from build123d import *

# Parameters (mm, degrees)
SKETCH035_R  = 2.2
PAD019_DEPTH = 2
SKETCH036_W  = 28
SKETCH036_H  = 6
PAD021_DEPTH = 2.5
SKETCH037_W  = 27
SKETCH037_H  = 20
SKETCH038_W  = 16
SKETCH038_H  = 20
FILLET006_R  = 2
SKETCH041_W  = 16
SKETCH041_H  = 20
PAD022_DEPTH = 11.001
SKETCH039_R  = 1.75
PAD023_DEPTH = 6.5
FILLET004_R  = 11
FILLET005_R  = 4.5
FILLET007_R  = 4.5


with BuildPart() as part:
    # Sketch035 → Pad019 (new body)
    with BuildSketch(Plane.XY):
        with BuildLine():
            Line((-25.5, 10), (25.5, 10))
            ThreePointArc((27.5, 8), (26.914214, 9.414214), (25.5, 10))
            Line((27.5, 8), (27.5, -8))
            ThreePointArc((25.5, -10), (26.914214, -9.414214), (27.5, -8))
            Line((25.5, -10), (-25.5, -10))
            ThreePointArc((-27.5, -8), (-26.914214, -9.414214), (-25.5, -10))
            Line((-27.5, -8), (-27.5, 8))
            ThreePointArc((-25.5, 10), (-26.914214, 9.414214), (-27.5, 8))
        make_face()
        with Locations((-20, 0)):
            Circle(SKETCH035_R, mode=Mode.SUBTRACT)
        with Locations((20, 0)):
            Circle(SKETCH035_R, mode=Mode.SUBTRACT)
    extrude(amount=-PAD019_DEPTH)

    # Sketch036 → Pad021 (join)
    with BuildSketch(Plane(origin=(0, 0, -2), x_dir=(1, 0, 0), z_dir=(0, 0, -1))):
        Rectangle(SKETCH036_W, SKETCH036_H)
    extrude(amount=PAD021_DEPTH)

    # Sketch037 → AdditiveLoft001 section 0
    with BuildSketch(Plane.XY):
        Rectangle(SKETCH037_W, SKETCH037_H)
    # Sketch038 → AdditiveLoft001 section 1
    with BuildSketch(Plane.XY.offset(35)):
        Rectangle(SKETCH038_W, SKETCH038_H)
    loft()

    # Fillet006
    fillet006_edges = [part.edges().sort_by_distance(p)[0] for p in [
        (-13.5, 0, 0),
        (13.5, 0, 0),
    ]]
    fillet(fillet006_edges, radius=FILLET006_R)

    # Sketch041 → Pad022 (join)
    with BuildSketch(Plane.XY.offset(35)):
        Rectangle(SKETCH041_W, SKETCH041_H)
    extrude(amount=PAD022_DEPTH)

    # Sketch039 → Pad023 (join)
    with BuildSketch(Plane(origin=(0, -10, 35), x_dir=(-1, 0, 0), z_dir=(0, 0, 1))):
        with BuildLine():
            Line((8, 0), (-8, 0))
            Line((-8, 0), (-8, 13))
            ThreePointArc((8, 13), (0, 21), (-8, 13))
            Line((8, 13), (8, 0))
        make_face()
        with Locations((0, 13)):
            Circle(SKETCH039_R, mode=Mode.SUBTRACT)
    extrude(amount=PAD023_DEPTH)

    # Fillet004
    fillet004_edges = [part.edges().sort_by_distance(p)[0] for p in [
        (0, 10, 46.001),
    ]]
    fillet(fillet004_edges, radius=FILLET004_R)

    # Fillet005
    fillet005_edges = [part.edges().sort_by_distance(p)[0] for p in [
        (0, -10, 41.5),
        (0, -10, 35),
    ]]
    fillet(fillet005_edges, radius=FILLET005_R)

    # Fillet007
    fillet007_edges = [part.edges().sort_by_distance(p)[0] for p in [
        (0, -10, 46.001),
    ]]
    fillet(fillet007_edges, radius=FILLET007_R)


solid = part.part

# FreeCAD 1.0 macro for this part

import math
import FreeCAD as App
import Part
import Sketcher

V = App.Vector
Q = App.Units.Quantity


def edges_at(feature, points):
    """Names of the edges that pass closest to the given points."""
    edges = feature.Shape.Edges
    near = lambda p: min(range(len(edges)), key=lambda i: edges[i].distToShape(Part.Vertex(*p))[0])
    return sorted({f"Edge{near(p) + 1}" for p in points})

doc = App.newDocument("Part")
params = doc.addObject("Spreadsheet::Sheet", "Params")
for row, (alias, value) in enumerate([
    ("sketch1_radius", "1.999999 mm"),
    ("sketch1_diameter", "4.4 mm"),
    ("sketch1_width", "51 mm"),
    ("sketch1_height", "16 mm"),
    ("pad1_length", "2 mm"),
    ("sketch2_width", "28 mm"),
    ("sketch2_height", "6 mm"),
    ("pad2_length", "2.5 mm"),
    ("sketch3_width", "27 mm"),
    ("sketch3_height", "20 mm"),
    ("sketch4_width", "16 mm"),
    ("sketch4_height", "20 mm"),
    ("fillet_radius", "2 mm"),
    ("sketch5_width", "16 mm"),
    ("sketch5_height", "20 mm"),
    ("pad3_length", "11.001 mm"),
    ("sketch6_radius", "8 mm"),
    ("sketch6_diameter", "3.5 mm"),
    ("sketch6_height", "13 mm"),
    ("pad4_length", "6.5 mm"),
    ("fillet2_radius", "11 mm"),
    ("fillet3_radius", "4.5 mm"),
    ("fillet4_radius", "4.5 mm"),
], start=1):
    params.set(f"A{row}", alias)
    params.set(f"B{row}", "=" + value)
    params.setAlias(f"B{row}", alias)

body = doc.addObject("PartDesign::Body", "Body")

sketch1 = body.newObject("Sketcher::SketchObject", "Sketch")
sketch1.AttachmentSupport = (doc.getObject("XY_Plane"), [""])
sketch1.MapMode = "FlatFace"
sketch1.addGeometry(Part.LineSegment(V(25.5, 10, 0), V(-25.5, 10, 0)), False)
sketch1.addGeometry(Part.ArcOfCircle(Part.Circle(V(-25.5, 8, 0), V(0, 0, 1), 2), math.radians(90), math.radians(180)), False)
sketch1.addGeometry(Part.LineSegment(V(-27.5, 8, 0), V(-27.5, -8, 0)), False)
sketch1.addGeometry(Part.ArcOfCircle(Part.Circle(V(-25.5, -8, 0), V(0, 0, 1), 2), math.radians(180), math.radians(270)), False)
sketch1.addGeometry(Part.LineSegment(V(-25.5, -10, 0), V(25.5, -10, 0)), False)
sketch1.addGeometry(Part.ArcOfCircle(Part.Circle(V(25.5, -8, 0), V(0, 0, 1), 2), math.radians(-90), math.radians(0)), False)
sketch1.addGeometry(Part.LineSegment(V(27.5, -8, 0), V(27.5, 8, 0)), False)
sketch1.addGeometry(Part.ArcOfCircle(Part.Circle(V(25.5, 8, 0), V(0, 0, 1), 2), math.radians(0), math.radians(90)), False)
sketch1.addGeometry(Part.Circle(V(20, 0, 0), V(0, 0, 1), 2.2), False)
sketch1.addGeometry(Part.Circle(V(-20, 0, 0), V(0, 0, 1), 2.2), False)
sketch1.addConstraint(Sketcher.Constraint("Tangent", 0, 2, 1, 1))
sketch1.addConstraint(Sketcher.Constraint("Tangent", 1, 2, 2, 1))
sketch1.addConstraint(Sketcher.Constraint("Tangent", 2, 2, 3, 1))
sketch1.addConstraint(Sketcher.Constraint("Tangent", 3, 2, 4, 1))
sketch1.addConstraint(Sketcher.Constraint("Tangent", 4, 2, 5, 1))
sketch1.addConstraint(Sketcher.Constraint("Tangent", 5, 2, 6, 1))
sketch1.addConstraint(Sketcher.Constraint("Tangent", 6, 2, 7, 1))
sketch1.addConstraint(Sketcher.Constraint("Tangent", 7, 2, 0, 1))
sketch1.addConstraint(Sketcher.Constraint("Horizontal", 0))
sketch1.addConstraint(Sketcher.Constraint("Vertical", 2))
sketch1.addConstraint(Sketcher.Constraint("Horizontal", 4))
sketch1.addConstraint(Sketcher.Constraint("Vertical", 6))
sketch1.addConstraint(Sketcher.Constraint("Equal", 1, 3))
sketch1.addConstraint(Sketcher.Constraint("Equal", 3, 5))
sketch1.addConstraint(Sketcher.Constraint("Equal", 5, 7))
sketch1.addConstraint(Sketcher.Constraint("Equal", 8, 9))
sketch1.addConstraint(Sketcher.Constraint("Symmetric", 1, 3, 5, 3, -1, 1))
sketch1.addConstraint(Sketcher.Constraint("Symmetric", 8, 3, 9, 3, -1, 1))
sketch1.addConstraint(Sketcher.Constraint("PointOnObject", 8, 3, -1))
sketch1.addConstraint(Sketcher.Constraint("Radius", 1, Q("1.999999 mm")))
sketch1.addConstraint(Sketcher.Constraint("Diameter", 8, Q("4.4 mm")))
sketch1.addConstraint(Sketcher.Constraint("DistanceX", 0, 2, 0, 1, Q("51 mm")))
sketch1.addConstraint(Sketcher.Constraint("DistanceY", 2, 2, 2, 1, Q("16 mm")))
sketch1.addConstraint(Sketcher.Constraint("DistanceX", -1, 1, 8, 3, Q("20 mm")))
sketch1.setExpression("Constraints[19]", "Params.sketch1_radius")
sketch1.setExpression("Constraints[20]", "Params.sketch1_diameter")
sketch1.setExpression("Constraints[21]", "Params.sketch1_width")
sketch1.setExpression("Constraints[22]", "Params.sketch1_height")
pad1 = body.newObject("PartDesign::Pad", "Pad")
pad1.Profile = sketch1
pad1.setExpression("Length", "Params.pad1_length")
pad1.Reversed = True

sketch2 = body.newObject("Sketcher::SketchObject", "Sketch001")
sketch2.AttachmentSupport = (doc.getObject("XY_Plane"), [""])
sketch2.MapMode = "FlatFace"
sketch2.AttachmentOffset = App.Placement(V(0, 0, -2), App.Rotation())
sketch2.addGeometry(Part.LineSegment(V(-14, -3, 0), V(-14, 3, 0)), False)
sketch2.addGeometry(Part.LineSegment(V(-14, 3, 0), V(14, 3, 0)), False)
sketch2.addGeometry(Part.LineSegment(V(14, 3, 0), V(14, -3, 0)), False)
sketch2.addGeometry(Part.LineSegment(V(14, -3, 0), V(-14, -3, 0)), False)
sketch2.addConstraint(Sketcher.Constraint("Coincident", 0, 2, 1, 1))
sketch2.addConstraint(Sketcher.Constraint("Coincident", 1, 2, 2, 1))
sketch2.addConstraint(Sketcher.Constraint("Coincident", 2, 2, 3, 1))
sketch2.addConstraint(Sketcher.Constraint("Coincident", 3, 2, 0, 1))
sketch2.addConstraint(Sketcher.Constraint("Vertical", 0))
sketch2.addConstraint(Sketcher.Constraint("Horizontal", 1))
sketch2.addConstraint(Sketcher.Constraint("Vertical", 2))
sketch2.addConstraint(Sketcher.Constraint("Horizontal", 3))
sketch2.addConstraint(Sketcher.Constraint("Symmetric", 0, 2, 2, 2, -1, 1))
sketch2.addConstraint(Sketcher.Constraint("DistanceX", 1, 1, 1, 2, Q("28 mm")))
sketch2.addConstraint(Sketcher.Constraint("DistanceY", 0, 1, 0, 2, Q("6 mm")))
sketch2.setExpression("Constraints[9]", "Params.sketch2_width")
sketch2.setExpression("Constraints[10]", "Params.sketch2_height")
pad2 = body.newObject("PartDesign::Pad", "Pad001")
pad2.Profile = sketch2
pad2.setExpression("Length", "Params.pad2_length")
pad2.Reversed = True

sketch3 = body.newObject("Sketcher::SketchObject", "Sketch002")
sketch3.AttachmentSupport = (doc.getObject("XY_Plane"), [""])
sketch3.MapMode = "FlatFace"
sketch3.addGeometry(Part.LineSegment(V(-14, 10, 0), V(-14, -10, 0)), False)
sketch3.addGeometry(Part.LineSegment(V(-14, -10, 0), V(14, -10, 0)), False)
sketch3.addGeometry(Part.LineSegment(V(14, -10, 0), V(14, 10, 0)), False)
sketch3.addGeometry(Part.LineSegment(V(14, 10, 0), V(-14, 10, 0)), False)
sketch3.addConstraint(Sketcher.Constraint("Coincident", 0, 2, 1, 1))
sketch3.addConstraint(Sketcher.Constraint("Coincident", 1, 2, 2, 1))
sketch3.addConstraint(Sketcher.Constraint("Coincident", 2, 2, 3, 1))
sketch3.addConstraint(Sketcher.Constraint("Coincident", 3, 2, 0, 1))
sketch3.addConstraint(Sketcher.Constraint("Vertical", 0))
sketch3.addConstraint(Sketcher.Constraint("Horizontal", 1))
sketch3.addConstraint(Sketcher.Constraint("Vertical", 2))
sketch3.addConstraint(Sketcher.Constraint("Horizontal", 3))
sketch3.addConstraint(Sketcher.Constraint("Symmetric", 0, 2, 2, 2, -1, 1))
sketch3.addConstraint(Sketcher.Constraint("DistanceX", 1, 1, 1, 2, Q("27 mm")))
sketch3.addConstraint(Sketcher.Constraint("DistanceY", 0, 2, 0, 1, Q("20 mm")))
sketch3.setExpression("Constraints[9]", "Params.sketch3_width")
sketch3.setExpression("Constraints[10]", "Params.sketch3_height")

sketch4 = body.newObject("Sketcher::SketchObject", "Sketch003")
sketch4.AttachmentSupport = (doc.getObject("XY_Plane"), [""])
sketch4.MapMode = "FlatFace"
sketch4.AttachmentOffset = App.Placement(V(0, 0, 35), App.Rotation())
sketch4.addGeometry(Part.LineSegment(V(-8, 10, 0), V(-8, -10, 0)), False)
sketch4.addGeometry(Part.LineSegment(V(-8, -10, 0), V(8, -10, 0)), False)
sketch4.addGeometry(Part.LineSegment(V(8, -10, 0), V(8, 10, 0)), False)
sketch4.addGeometry(Part.LineSegment(V(8, 10, 0), V(-8, 10, 0)), False)
sketch4.addConstraint(Sketcher.Constraint("Coincident", 0, 2, 1, 1))
sketch4.addConstraint(Sketcher.Constraint("Coincident", 1, 2, 2, 1))
sketch4.addConstraint(Sketcher.Constraint("Coincident", 2, 2, 3, 1))
sketch4.addConstraint(Sketcher.Constraint("Coincident", 3, 2, 0, 1))
sketch4.addConstraint(Sketcher.Constraint("Vertical", 0))
sketch4.addConstraint(Sketcher.Constraint("Horizontal", 1))
sketch4.addConstraint(Sketcher.Constraint("Vertical", 2))
sketch4.addConstraint(Sketcher.Constraint("Horizontal", 3))
sketch4.addConstraint(Sketcher.Constraint("Symmetric", 0, 2, 2, 2, -1, 1))
sketch4.addConstraint(Sketcher.Constraint("DistanceX", 1, 1, 1, 2, Q("16 mm")))
sketch4.addConstraint(Sketcher.Constraint("DistanceY", 0, 2, 0, 1, Q("20 mm")))
sketch4.setExpression("Constraints[9]", "Params.sketch4_width")
sketch4.setExpression("Constraints[10]", "Params.sketch4_height")

additiveloft = body.newObject("PartDesign::AdditiveLoft", "AdditiveLoft")
additiveloft.Profile = sketch3
additiveloft.Sections = [sketch4]
doc.recompute()

fillet = body.newObject("PartDesign::Fillet", "Fillet")
fillet.Base = (additiveloft, edges_at(additiveloft, [(-13.5, 0, 0), (13.5, 0, 0)]))
fillet.setExpression("Radius", "Params.fillet_radius")

sketch5 = body.newObject("Sketcher::SketchObject", "Sketch004")
sketch5.AttachmentSupport = (doc.getObject("XY_Plane"), [""])
sketch5.MapMode = "FlatFace"
sketch5.AttachmentOffset = App.Placement(V(0, 0, 35), App.Rotation())
sketch5.addGeometry(Part.LineSegment(V(-8, 10, 0), V(-8, -10, 0)), False)
sketch5.addGeometry(Part.LineSegment(V(-8, -10, 0), V(8, -10, 0)), False)
sketch5.addGeometry(Part.LineSegment(V(8, -10, 0), V(8, 10, 0)), False)
sketch5.addGeometry(Part.LineSegment(V(8, 10, 0), V(-8, 10, 0)), False)
sketch5.addConstraint(Sketcher.Constraint("Coincident", 0, 2, 1, 1))
sketch5.addConstraint(Sketcher.Constraint("Coincident", 1, 2, 2, 1))
sketch5.addConstraint(Sketcher.Constraint("Coincident", 2, 2, 3, 1))
sketch5.addConstraint(Sketcher.Constraint("Coincident", 3, 2, 0, 1))
sketch5.addConstraint(Sketcher.Constraint("Vertical", 0))
sketch5.addConstraint(Sketcher.Constraint("Horizontal", 1))
sketch5.addConstraint(Sketcher.Constraint("Vertical", 2))
sketch5.addConstraint(Sketcher.Constraint("Horizontal", 3))
sketch5.addConstraint(Sketcher.Constraint("Symmetric", 0, 2, 2, 2, -1, 1))
sketch5.addConstraint(Sketcher.Constraint("DistanceX", 1, 1, 1, 2, Q("16 mm")))
sketch5.addConstraint(Sketcher.Constraint("DistanceY", 0, 2, 0, 1, Q("20 mm")))
sketch5.setExpression("Constraints[9]", "Params.sketch5_width")
sketch5.setExpression("Constraints[10]", "Params.sketch5_height")
pad3 = body.newObject("PartDesign::Pad", "Pad002")
pad3.Profile = sketch5
pad3.setExpression("Length", "Params.pad3_length")

sketch6 = body.newObject("Sketcher::SketchObject", "Sketch005")
sketch6.AttachmentSupport = (doc.getObject("XY_Plane"), [""])
sketch6.MapMode = "FlatFace"
sketch6.AttachmentOffset = App.Placement(V(0, 0, 35), App.Rotation())
sketch6.addGeometry(Part.LineSegment(V(8, -10, 0), V(-8, -10, 0)), False)
sketch6.addGeometry(Part.LineSegment(V(-8, -10, 0), V(-8, -23, 0)), False)
sketch6.addGeometry(Part.ArcOfCircle(Part.Circle(V(0, -23, 0), V(0, 0, 1), 8), math.radians(180), math.radians(360)), False)
sketch6.addGeometry(Part.LineSegment(V(8, -23, 0), V(8, -10, 0)), False)
sketch6.addGeometry(Part.Circle(V(0, -23, 0), V(0, 0, 1), 1.8), False)
sketch6.addConstraint(Sketcher.Constraint("Coincident", 0, 2, 1, 1))
sketch6.addConstraint(Sketcher.Constraint("Tangent", 1, 2, 2, 1))
sketch6.addConstraint(Sketcher.Constraint("Tangent", 2, 2, 3, 1))
sketch6.addConstraint(Sketcher.Constraint("Coincident", 3, 2, 0, 1))
sketch6.addConstraint(Sketcher.Constraint("Horizontal", 0))
sketch6.addConstraint(Sketcher.Constraint("Vertical", 1))
sketch6.addConstraint(Sketcher.Constraint("Vertical", 3))
sketch6.addConstraint(Sketcher.Constraint("Coincident", 4, 3, 2, 3))
sketch6.addConstraint(Sketcher.Constraint("PointOnObject", 2, 3, -2))
sketch6.addConstraint(Sketcher.Constraint("Radius", 2, Q("8 mm")))
sketch6.addConstraint(Sketcher.Constraint("Diameter", 4, Q("3.5 mm")))
sketch6.addConstraint(Sketcher.Constraint("DistanceY", 1, 2, 1, 1, Q("13 mm")))
sketch6.addConstraint(Sketcher.Constraint("DistanceY", 2, 3, -1, 1, Q("23 mm")))
sketch6.setExpression("Constraints[9]", "Params.sketch6_radius")
sketch6.setExpression("Constraints[10]", "Params.sketch6_diameter")
sketch6.setExpression("Constraints[11]", "Params.sketch6_height")
pad4 = body.newObject("PartDesign::Pad", "Pad003")
pad4.Profile = sketch6
pad4.setExpression("Length", "Params.pad4_length")
doc.recompute()

fillet2 = body.newObject("PartDesign::Fillet", "Fillet001")
fillet2.Base = (pad4, edges_at(pad4, [(0, 10, 46.001)]))
fillet2.setExpression("Radius", "Params.fillet2_radius")
doc.recompute()

fillet3 = body.newObject("PartDesign::Fillet", "Fillet002")
fillet3.Base = (fillet2, edges_at(fillet2, [(0, -10, 41.5), (0, -10, 35)]))
fillet3.setExpression("Radius", "Params.fillet3_radius")
doc.recompute()

fillet4 = body.newObject("PartDesign::Fillet", "Fillet003")
fillet4.Base = (fillet3, edges_at(fillet3, [(0, -10, 46.001)]))
fillet4.setExpression("Radius", "Params.fillet4_radius")

doc.recompute()
